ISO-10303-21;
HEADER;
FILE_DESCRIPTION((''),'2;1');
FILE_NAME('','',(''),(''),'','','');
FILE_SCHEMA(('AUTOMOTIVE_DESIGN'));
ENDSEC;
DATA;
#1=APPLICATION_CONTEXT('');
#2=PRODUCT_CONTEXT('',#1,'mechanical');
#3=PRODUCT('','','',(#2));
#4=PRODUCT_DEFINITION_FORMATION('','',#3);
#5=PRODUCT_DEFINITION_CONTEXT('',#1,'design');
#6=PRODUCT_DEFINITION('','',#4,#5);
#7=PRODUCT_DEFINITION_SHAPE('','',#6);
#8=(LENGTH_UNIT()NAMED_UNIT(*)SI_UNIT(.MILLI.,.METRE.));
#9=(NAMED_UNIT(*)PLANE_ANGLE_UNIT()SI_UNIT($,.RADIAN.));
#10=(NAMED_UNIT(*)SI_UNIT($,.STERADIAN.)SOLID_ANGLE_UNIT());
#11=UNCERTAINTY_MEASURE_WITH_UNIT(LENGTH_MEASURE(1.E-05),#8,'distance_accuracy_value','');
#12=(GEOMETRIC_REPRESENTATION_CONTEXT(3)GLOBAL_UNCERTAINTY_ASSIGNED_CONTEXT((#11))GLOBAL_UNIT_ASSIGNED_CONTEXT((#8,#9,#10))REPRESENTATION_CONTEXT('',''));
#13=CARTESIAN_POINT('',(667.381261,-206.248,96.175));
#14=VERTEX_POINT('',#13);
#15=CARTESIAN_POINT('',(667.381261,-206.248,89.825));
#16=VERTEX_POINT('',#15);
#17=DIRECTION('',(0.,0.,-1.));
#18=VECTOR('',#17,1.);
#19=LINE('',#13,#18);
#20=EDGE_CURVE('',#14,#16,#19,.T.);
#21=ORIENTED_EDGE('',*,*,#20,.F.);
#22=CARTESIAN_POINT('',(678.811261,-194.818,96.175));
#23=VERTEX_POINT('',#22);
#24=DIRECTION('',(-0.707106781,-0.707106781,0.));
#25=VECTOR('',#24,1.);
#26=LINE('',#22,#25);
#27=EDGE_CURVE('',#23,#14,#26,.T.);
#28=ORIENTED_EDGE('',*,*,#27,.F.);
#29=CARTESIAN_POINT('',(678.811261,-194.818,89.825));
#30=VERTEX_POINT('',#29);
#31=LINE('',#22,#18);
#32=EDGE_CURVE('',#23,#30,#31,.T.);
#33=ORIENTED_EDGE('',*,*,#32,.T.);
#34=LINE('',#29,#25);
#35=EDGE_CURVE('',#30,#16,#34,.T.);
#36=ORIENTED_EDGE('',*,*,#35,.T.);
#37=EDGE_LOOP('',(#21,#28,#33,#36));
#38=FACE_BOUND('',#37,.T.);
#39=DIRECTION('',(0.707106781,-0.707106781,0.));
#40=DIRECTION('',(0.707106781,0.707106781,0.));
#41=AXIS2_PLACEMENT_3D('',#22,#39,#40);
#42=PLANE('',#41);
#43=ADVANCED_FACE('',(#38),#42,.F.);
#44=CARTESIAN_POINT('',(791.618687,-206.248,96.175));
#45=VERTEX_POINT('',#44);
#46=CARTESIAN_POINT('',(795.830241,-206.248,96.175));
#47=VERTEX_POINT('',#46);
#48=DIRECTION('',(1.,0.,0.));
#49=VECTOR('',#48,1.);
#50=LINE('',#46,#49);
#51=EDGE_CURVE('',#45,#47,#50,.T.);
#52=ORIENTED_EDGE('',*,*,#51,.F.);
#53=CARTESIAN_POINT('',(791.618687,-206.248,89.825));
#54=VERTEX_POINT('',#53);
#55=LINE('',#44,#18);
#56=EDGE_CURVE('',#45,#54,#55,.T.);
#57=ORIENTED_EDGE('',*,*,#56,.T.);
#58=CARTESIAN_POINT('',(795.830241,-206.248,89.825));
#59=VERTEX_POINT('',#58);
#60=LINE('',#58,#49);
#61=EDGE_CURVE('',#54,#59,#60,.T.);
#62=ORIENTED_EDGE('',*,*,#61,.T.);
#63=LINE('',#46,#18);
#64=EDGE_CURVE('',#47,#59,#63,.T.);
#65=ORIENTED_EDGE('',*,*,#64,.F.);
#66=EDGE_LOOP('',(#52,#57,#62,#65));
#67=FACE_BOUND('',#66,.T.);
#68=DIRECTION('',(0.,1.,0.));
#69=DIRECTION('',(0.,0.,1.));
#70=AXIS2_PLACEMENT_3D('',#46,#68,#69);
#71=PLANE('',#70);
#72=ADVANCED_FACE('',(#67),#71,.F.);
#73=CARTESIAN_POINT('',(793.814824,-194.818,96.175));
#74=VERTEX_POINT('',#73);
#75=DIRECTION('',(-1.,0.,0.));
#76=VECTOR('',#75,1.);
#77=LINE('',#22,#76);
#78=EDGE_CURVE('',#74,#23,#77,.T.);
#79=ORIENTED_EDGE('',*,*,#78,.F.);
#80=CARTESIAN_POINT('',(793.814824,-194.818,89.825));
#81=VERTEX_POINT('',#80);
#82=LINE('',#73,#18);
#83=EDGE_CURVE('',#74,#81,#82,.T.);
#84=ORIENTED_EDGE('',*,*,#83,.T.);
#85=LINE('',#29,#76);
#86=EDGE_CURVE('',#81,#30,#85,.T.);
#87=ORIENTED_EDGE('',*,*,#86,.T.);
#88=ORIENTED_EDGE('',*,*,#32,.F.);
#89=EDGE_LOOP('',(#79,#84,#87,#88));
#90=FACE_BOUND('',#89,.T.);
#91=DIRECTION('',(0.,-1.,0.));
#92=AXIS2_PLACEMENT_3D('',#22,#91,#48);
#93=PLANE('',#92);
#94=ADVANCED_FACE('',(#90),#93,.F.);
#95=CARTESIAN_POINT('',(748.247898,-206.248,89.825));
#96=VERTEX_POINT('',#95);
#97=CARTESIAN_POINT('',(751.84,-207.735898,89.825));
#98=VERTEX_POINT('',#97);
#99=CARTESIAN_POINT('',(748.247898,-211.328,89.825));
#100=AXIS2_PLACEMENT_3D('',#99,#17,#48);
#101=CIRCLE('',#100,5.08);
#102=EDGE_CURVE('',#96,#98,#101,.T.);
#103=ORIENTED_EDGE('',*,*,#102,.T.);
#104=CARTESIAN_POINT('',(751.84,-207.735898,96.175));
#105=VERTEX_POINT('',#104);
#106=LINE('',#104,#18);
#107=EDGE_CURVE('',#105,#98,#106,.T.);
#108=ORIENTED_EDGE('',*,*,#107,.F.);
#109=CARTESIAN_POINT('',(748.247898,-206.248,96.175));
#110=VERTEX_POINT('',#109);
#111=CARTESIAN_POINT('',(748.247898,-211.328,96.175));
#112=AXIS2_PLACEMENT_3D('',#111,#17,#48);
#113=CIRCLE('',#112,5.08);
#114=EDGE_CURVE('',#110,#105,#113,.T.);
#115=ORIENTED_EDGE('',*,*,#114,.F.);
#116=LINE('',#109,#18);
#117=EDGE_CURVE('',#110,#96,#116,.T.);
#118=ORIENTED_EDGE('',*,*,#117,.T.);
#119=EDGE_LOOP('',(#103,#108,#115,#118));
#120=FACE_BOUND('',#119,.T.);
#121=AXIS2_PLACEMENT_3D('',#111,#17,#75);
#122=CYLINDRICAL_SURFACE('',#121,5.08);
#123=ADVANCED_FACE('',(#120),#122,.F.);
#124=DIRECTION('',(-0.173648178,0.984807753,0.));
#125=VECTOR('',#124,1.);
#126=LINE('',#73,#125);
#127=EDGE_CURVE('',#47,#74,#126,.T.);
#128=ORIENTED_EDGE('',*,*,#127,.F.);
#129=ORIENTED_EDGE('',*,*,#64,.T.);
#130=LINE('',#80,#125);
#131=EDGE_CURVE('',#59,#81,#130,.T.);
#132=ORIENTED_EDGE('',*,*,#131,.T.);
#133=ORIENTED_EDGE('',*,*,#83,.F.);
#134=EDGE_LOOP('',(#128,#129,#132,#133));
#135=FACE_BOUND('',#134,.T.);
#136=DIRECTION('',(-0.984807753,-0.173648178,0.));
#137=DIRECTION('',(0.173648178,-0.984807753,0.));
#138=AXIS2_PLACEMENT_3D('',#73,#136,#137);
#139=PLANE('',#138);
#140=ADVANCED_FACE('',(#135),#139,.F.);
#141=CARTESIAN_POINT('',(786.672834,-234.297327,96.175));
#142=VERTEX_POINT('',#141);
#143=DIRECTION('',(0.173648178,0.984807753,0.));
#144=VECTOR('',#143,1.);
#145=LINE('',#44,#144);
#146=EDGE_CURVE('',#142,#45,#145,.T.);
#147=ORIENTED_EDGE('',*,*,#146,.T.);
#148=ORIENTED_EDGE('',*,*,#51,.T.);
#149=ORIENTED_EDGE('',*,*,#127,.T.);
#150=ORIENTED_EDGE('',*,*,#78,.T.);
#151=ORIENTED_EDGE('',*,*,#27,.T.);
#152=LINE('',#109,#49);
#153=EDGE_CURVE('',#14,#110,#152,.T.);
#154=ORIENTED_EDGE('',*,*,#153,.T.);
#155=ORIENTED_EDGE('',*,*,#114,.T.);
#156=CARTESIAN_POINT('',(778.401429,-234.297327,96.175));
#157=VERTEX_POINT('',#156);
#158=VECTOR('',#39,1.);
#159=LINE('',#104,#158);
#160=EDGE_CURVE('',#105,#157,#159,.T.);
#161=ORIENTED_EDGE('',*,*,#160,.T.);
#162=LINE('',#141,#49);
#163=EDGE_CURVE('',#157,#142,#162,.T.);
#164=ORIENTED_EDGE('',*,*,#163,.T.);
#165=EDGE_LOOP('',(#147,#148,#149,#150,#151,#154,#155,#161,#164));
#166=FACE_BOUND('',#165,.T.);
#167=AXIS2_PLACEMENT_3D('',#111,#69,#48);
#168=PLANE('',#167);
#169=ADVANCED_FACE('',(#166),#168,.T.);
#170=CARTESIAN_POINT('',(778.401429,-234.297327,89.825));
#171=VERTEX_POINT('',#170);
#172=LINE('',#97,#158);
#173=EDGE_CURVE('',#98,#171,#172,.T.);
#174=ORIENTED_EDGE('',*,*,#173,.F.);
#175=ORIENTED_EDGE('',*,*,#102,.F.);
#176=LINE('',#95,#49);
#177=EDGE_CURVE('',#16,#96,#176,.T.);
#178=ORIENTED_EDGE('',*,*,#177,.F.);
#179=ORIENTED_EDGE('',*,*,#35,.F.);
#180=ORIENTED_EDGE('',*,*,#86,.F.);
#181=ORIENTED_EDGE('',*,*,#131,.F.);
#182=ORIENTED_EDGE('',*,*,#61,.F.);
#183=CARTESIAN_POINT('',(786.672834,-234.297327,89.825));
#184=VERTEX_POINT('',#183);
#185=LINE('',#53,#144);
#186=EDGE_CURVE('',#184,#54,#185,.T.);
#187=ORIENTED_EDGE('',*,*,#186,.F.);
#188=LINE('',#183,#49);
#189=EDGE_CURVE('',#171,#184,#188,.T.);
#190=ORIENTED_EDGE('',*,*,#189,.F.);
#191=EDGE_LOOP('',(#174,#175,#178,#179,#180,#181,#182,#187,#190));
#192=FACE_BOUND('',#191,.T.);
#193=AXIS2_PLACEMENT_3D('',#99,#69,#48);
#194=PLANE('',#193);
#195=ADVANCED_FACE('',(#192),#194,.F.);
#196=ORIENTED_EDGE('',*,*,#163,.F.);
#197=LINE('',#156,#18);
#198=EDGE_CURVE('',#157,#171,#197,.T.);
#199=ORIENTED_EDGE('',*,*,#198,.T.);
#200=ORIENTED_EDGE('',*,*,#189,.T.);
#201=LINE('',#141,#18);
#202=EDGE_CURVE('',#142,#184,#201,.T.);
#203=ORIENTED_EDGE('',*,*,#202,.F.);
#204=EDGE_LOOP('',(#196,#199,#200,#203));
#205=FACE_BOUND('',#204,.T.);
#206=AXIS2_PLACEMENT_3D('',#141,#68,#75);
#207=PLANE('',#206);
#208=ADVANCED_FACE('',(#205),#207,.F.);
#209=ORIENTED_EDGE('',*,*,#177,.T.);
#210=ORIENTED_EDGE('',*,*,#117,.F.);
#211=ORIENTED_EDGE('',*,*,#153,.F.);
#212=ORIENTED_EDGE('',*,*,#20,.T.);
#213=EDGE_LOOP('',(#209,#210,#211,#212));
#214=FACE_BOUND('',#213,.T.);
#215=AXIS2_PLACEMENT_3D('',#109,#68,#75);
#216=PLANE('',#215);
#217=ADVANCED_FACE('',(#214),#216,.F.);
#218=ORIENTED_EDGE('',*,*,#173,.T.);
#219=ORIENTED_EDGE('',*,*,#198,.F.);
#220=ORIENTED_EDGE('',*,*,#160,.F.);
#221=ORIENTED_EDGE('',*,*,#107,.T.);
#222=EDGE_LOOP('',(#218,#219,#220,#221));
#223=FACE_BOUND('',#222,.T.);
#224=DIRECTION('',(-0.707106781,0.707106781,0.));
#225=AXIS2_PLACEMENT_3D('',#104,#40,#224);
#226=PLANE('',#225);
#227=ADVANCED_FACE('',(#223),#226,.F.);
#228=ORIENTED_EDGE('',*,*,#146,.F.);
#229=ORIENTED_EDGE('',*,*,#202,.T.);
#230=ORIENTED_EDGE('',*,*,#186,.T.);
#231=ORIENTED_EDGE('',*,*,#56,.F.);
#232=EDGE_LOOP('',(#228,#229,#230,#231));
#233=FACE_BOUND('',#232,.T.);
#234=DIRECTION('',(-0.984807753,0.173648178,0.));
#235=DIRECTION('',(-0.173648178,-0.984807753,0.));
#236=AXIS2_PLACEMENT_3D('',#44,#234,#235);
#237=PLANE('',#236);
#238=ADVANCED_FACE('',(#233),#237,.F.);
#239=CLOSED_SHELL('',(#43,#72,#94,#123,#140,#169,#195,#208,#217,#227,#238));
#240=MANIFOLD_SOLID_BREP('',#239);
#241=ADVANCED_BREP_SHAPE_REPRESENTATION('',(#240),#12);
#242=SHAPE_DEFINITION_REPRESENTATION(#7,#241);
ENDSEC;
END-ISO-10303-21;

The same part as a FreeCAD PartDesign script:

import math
import FreeCAD as App
import Part
import Sketcher
from FreeCAD import Vector
Q = App.Units.Quantity

doc = App.newDocument("Part")
params = doc.addObject("Spreadsheet::Sheet", "Params")
for row, (alias, value) in enumerate([
    ("sketch1_radius", "0.2 in"),
    ("pad1_length", "0.25 in"),
], start=1):
    params.set(f"A{row}", alias)
    params.set(f"B{row}", "=" + value)
    params.setAlias(f"B{row}", alias)

body = doc.addObject("PartDesign::Body", "Body")

# Sketch on XY plane
sketch1 = body.newObject("Sketcher::SketchObject", "Sketch")
sketch1.AttachmentSupport = (doc.getObject("XY_Plane"), [""])
sketch1.MapMode = "FlatFace"
sketch1.AttachmentOffset = App.Placement(Vector(0, 0, 93), App.Rotation())
sketch1.addGeometry(Part.LineSegment(Vector(778.4, -234.3, 0), Vector(786.7, -234.3, 0)), False)
sketch1.addGeometry(Part.LineSegment(Vector(786.7, -234.3, 0), Vector(791.6, -206.2, 0)), False)
sketch1.addGeometry(Part.LineSegment(Vector(791.6, -206.2, 0), Vector(795.8, -206.2, 0)), False)
sketch1.addGeometry(Part.LineSegment(Vector(795.8, -206.2, 0), Vector(793.8, -194.8, 0)), False)
sketch1.addGeometry(Part.LineSegment(Vector(793.8, -194.8, 0), Vector(678.8, -194.8, 0)), False)
sketch1.addGeometry(Part.LineSegment(Vector(678.8, -194.8, 0), Vector(667.4, -206.2, 0)), False)
sketch1.addGeometry(Part.LineSegment(Vector(667.4, -206.2, 0), Vector(748.2, -206.2, 0)), False)
sketch1.addGeometry(Part.ArcOfCircle(Part.Circle(Vector(748.2, -211.3, 0), Vector(0, 0, 1), 5.1), math.radians(45), math.radians(90)), False)
sketch1.addGeometry(Part.LineSegment(Vector(751.8, -207.7, 0), Vector(778.4, -234.3, 0)), False)
sketch1.addConstraint(Sketcher.Constraint("Coincident", 0, 2, 1, 1))
sketch1.addConstraint(Sketcher.Constraint("Coincident", 1, 2, 2, 1))
sketch1.addConstraint(Sketcher.Constraint("Coincident", 2, 2, 3, 1))
sketch1.addConstraint(Sketcher.Constraint("Coincident", 3, 2, 4, 1))
sketch1.addConstraint(Sketcher.Constraint("Coincident", 4, 2, 5, 1))
sketch1.addConstraint(Sketcher.Constraint("Coincident", 5, 2, 6, 1))
sketch1.addConstraint(Sketcher.Constraint("Tangent", 6, 2, 7, 2))
sketch1.addConstraint(Sketcher.Constraint("Tangent", 7, 1, 8, 1))
sketch1.addConstraint(Sketcher.Constraint("Coincident", 8, 2, 0, 1))
sketch1.addConstraint(Sketcher.Constraint("Horizontal", 0))
sketch1.addConstraint(Sketcher.Constraint("Horizontal", 2))
sketch1.addConstraint(Sketcher.Constraint("Horizontal", 4))
sketch1.addConstraint(Sketcher.Constraint("Horizontal", 6))
sketch1.addConstraint(Sketcher.Constraint("Perpendicular", 5, 8))
sketch1.addConstraint(Sketcher.Constraint("Horizontal", 2, 2, 5, 2))
sketch1.addConstraint(Sketcher.Constraint("Radius", 7, Q("0.2 in")))
sketch1.addConstraint(Sketcher.Constraint("Angle", 1, Q("80 deg")))
sketch1.addConstraint(Sketcher.Constraint("Angle", 3, Q("100 deg")))
sketch1.addConstraint(Sketcher.Constraint("Angle", 5, Q("-135 deg")))
sketch1.addConstraint(Sketcher.Constraint("DistanceX", -1, 1, 7, 1, Q("29.6 in")))
sketch1.addConstraint(Sketcher.Constraint("DistanceY", 7, 3, -1, 1, Q("8.32 in")))
sketch1.addConstraint(Sketcher.Constraint("DistanceY", 3, 2, -1, 1, Q("7.67 in")))
sketch1.addConstraint(Sketcher.Constraint("DistanceX", 0, 1, 0, 2, 8.271404))
sketch1.addConstraint(Sketcher.Constraint("DistanceX", 2, 1, 2, 2, 4.211554))
sketch1.addConstraint(Sketcher.Constraint("DistanceX", 4, 2, 4, 1, 115.003562))
sketch1.addConstraint(Sketcher.Constraint("DistanceX", 6, 1, 6, 2, 80.866636))
sketch1.setExpression("Constraints[15]", "Params.sketch1_radius")
pad1 = body.newObject("PartDesign::Pad", "Pad")
pad1.Profile = sketch1
pad1.setExpression("Length", "Params.pad1_length")
pad1.Midplane = True

doc.recompute()
